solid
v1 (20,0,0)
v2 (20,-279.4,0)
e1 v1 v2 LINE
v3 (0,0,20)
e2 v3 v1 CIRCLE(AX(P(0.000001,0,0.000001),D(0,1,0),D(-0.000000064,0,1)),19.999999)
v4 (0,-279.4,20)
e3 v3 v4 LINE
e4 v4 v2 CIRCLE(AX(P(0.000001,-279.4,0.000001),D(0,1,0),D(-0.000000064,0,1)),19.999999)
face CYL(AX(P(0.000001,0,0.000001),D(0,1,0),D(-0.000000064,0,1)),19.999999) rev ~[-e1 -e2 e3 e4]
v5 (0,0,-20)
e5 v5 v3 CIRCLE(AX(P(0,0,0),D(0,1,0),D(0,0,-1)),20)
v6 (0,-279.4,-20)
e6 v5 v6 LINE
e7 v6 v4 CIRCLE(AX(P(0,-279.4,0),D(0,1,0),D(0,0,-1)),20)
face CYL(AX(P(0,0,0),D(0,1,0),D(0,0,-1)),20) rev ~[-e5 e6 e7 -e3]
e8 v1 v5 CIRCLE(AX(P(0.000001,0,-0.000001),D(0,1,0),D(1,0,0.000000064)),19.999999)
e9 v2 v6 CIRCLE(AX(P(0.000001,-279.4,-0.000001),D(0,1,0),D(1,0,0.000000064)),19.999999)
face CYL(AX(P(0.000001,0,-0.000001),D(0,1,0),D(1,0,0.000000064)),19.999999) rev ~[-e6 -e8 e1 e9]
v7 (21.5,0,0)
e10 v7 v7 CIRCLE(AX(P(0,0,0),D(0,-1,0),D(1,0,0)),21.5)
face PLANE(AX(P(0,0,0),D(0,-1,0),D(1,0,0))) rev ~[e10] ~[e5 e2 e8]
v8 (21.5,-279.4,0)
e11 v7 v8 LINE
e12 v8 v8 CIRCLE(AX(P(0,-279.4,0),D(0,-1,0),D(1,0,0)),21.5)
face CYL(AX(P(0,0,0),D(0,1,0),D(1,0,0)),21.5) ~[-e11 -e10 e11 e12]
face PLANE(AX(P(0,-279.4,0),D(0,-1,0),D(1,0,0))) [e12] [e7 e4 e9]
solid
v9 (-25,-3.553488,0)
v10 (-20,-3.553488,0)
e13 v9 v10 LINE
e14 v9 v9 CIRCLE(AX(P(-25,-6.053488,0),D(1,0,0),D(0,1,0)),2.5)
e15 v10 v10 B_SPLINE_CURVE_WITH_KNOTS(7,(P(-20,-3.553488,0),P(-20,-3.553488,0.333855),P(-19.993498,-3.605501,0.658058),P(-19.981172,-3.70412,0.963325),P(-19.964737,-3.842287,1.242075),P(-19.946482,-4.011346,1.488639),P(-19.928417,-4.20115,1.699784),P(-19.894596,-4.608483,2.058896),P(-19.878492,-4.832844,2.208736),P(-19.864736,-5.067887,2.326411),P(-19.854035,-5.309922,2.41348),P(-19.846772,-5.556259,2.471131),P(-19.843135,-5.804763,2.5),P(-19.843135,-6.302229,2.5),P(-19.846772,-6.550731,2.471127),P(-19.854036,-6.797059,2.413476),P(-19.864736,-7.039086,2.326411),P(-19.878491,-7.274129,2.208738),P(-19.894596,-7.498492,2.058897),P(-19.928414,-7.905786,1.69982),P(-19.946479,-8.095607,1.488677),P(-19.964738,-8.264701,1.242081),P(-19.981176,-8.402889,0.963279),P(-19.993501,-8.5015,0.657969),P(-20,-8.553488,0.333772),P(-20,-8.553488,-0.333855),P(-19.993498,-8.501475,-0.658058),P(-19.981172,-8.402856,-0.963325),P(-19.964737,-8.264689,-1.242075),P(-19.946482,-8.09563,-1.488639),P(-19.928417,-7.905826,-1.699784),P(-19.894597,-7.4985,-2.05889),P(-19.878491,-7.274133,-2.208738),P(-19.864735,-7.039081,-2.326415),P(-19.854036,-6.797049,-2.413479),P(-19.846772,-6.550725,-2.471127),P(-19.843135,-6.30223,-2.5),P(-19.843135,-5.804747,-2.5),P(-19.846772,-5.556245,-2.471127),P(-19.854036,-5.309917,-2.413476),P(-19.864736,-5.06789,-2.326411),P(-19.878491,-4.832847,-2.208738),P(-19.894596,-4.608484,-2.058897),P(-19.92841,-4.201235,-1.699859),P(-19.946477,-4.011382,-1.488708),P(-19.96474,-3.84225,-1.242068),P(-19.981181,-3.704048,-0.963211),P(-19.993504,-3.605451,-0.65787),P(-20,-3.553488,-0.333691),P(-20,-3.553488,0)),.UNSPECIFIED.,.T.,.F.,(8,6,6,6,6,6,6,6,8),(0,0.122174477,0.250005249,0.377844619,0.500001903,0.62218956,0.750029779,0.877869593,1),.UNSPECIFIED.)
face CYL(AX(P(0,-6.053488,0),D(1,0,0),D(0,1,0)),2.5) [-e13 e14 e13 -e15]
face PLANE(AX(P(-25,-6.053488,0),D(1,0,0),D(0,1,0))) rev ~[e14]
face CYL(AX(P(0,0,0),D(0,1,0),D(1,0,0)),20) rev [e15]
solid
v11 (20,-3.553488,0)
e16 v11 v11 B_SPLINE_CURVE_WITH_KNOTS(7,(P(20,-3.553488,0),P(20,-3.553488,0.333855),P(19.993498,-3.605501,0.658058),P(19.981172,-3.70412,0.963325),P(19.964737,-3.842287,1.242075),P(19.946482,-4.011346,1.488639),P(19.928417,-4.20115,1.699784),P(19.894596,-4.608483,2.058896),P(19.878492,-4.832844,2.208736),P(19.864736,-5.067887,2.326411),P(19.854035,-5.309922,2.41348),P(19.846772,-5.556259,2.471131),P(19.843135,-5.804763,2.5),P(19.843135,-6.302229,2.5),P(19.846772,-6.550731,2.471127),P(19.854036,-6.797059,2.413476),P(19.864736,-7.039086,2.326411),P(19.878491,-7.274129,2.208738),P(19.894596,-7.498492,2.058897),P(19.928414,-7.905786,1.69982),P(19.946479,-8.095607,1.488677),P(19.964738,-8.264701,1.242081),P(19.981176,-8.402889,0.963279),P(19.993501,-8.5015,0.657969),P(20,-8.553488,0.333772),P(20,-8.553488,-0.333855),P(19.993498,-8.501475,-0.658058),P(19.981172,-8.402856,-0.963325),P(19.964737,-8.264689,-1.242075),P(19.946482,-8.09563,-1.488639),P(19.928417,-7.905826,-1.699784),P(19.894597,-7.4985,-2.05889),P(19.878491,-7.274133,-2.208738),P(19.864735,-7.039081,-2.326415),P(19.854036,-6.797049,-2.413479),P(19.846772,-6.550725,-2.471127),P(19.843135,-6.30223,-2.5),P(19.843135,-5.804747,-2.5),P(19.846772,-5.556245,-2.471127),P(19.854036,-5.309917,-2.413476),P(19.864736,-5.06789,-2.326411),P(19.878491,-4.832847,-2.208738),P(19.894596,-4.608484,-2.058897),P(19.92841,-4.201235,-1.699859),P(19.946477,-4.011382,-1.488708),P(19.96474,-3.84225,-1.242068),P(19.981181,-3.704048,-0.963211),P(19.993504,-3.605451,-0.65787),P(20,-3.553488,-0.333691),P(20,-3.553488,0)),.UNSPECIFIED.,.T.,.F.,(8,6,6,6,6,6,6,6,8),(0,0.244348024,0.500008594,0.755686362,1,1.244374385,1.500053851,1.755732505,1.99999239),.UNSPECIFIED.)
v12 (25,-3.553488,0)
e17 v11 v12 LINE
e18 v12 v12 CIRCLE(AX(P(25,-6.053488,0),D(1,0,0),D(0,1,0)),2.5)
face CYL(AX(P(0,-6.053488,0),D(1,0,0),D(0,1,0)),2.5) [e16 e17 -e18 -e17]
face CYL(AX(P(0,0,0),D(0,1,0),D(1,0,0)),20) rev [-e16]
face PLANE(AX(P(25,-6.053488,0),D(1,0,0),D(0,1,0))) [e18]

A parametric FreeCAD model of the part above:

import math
import FreeCAD as App
import Part
import Sketcher

V = App.Vector

doc = App.newDocument("Part")
params = doc.addObject("Spreadsheet::Sheet", "Params")
for row, (alias, value) in enumerate([
    ("sketch1_diameter", "5 mm"),
    ("pad1_length", "50 mm"),
    ("sketch2_diameter", "40 mm"),
    ("pocket1_length", "21.336 mm"),
    ("sketch3_diameter", "43 mm"),
    ("sketch3_radius", "20 mm"),
    ("pad2_length", "279.4 mm"),
], start=1):
    params.set(f"A{row}", alias)
    params.set(f"B{row}", "=" + value)
    params.setAlias(f"B{row}", alias)

body = doc.addObject("PartDesign::Body", "Body")
body.AllowCompound = True

# Sketch on YZ plane
sketch1 = body.newObject("Sketcher::SketchObject", "Sketch")
sketch1.AttachmentSupport = (doc.getObject("YZ_Plane"), [""])
sketch1.MapMode = "FlatFace"
sketch1.addGeometry(Part.Circle(V(-6.1, 0, 0), V(0, 0, 1), 2.5), False)
sketch1.addConstraint([
    Sketcher.Constraint("PointOnObject", 0, 3, -1),
    Sketcher.Constraint("Diameter", 0, 5.0),
    Sketcher.Constraint("DistanceX", 0, 3, -1, 1, 6.053488),
])
sketch1.setExpression("Constraints[1]", "Params.sketch1_diameter")
pad1 = body.newObject("PartDesign::Pad", "Pad")
pad1.Profile = sketch1
pad1.setExpression("Length", "Params.pad1_length")
pad1.Midplane = True

# Sketch on XZ plane
sketch2 = body.newObject("Sketcher::SketchObject", "Sketch001")
sketch2.AttachmentSupport = (doc.getObject("XZ_Plane"), [""])
sketch2.MapMode = "FlatFace"
sketch2.addGeometry(Part.Circle(V(0, 0, 0), V(0, 0, 1), 20), False)
sketch2.addConstraint([
    Sketcher.Constraint("Coincident", 0, 3, -1, 1),
    Sketcher.Constraint("Diameter", 0, 40.0),
])
sketch2.setExpression("Constraints[1]", "Params.sketch2_diameter")
pocket1 = body.newObject("PartDesign::Pocket", "Pocket")
pocket1.Profile = sketch2
pocket1.setExpression("Length", "Params.pocket1_length")
pocket1.Reversed = True
body2 = doc.addObject("PartDesign::Body", "Body001")

# Sketch on XZ plane
sketch3 = body2.newObject("Sketcher::SketchObject", "Sketch002")
sketch3.AttachmentSupport = (doc.getObject("XZ_Plane001"), [""])
sketch3.MapMode = "FlatFace"
sketch3.addGeometry([
    Part.Circle(V(0, 0, 0), V(0, 0, 1), 22),
    Part.ArcOfCircle(Part.Circle(V(0, 0, 0), V(0, 0, 1), 20), math.radians(90), math.radians(270)),
    Part.ArcOfCircle(Part.Circle(V(0, 0, 0), V(0, 0, 1), 20), math.radians(0), math.radians(90)),
    Part.ArcOfCircle(Part.Circle(V(0, 0, 0), V(0, 0, 1), 20), math.radians(-90), math.radians(0)),
], False)
sketch3.addConstraint([
    Sketcher.Constraint("Tangent", 1, 1, 2, 2),
    Sketcher.Constraint("Tangent", 2, 1, 3, 2),
    Sketcher.Constraint("Tangent", 3, 1, 1, 2),
    Sketcher.Constraint("Coincident", 0, 3, -1, 1),
    Sketcher.Constraint("Coincident", 1, 3, -1, 1),
    Sketcher.Constraint("PointOnObject", 1, 1, -2),
    Sketcher.Constraint("PointOnObject", 2, 1, -1),
    Sketcher.Constraint("PointOnObject", 3, 1, -2),
    Sketcher.Constraint("Diameter", 0, 43.0),
    Sketcher.Constraint("Radius", 1, 20.0),
])
sketch3.setExpression("Constraints[8]", "Params.sketch3_diameter")
sketch3.setExpression("Constraints[9]", "Params.sketch3_radius")
pad2 = body2.newObject("PartDesign::Pad", "Pad001")
pad2.Profile = sketch3
pad2.setExpression("Length", "Params.pad2_length")

doc.recompute()
